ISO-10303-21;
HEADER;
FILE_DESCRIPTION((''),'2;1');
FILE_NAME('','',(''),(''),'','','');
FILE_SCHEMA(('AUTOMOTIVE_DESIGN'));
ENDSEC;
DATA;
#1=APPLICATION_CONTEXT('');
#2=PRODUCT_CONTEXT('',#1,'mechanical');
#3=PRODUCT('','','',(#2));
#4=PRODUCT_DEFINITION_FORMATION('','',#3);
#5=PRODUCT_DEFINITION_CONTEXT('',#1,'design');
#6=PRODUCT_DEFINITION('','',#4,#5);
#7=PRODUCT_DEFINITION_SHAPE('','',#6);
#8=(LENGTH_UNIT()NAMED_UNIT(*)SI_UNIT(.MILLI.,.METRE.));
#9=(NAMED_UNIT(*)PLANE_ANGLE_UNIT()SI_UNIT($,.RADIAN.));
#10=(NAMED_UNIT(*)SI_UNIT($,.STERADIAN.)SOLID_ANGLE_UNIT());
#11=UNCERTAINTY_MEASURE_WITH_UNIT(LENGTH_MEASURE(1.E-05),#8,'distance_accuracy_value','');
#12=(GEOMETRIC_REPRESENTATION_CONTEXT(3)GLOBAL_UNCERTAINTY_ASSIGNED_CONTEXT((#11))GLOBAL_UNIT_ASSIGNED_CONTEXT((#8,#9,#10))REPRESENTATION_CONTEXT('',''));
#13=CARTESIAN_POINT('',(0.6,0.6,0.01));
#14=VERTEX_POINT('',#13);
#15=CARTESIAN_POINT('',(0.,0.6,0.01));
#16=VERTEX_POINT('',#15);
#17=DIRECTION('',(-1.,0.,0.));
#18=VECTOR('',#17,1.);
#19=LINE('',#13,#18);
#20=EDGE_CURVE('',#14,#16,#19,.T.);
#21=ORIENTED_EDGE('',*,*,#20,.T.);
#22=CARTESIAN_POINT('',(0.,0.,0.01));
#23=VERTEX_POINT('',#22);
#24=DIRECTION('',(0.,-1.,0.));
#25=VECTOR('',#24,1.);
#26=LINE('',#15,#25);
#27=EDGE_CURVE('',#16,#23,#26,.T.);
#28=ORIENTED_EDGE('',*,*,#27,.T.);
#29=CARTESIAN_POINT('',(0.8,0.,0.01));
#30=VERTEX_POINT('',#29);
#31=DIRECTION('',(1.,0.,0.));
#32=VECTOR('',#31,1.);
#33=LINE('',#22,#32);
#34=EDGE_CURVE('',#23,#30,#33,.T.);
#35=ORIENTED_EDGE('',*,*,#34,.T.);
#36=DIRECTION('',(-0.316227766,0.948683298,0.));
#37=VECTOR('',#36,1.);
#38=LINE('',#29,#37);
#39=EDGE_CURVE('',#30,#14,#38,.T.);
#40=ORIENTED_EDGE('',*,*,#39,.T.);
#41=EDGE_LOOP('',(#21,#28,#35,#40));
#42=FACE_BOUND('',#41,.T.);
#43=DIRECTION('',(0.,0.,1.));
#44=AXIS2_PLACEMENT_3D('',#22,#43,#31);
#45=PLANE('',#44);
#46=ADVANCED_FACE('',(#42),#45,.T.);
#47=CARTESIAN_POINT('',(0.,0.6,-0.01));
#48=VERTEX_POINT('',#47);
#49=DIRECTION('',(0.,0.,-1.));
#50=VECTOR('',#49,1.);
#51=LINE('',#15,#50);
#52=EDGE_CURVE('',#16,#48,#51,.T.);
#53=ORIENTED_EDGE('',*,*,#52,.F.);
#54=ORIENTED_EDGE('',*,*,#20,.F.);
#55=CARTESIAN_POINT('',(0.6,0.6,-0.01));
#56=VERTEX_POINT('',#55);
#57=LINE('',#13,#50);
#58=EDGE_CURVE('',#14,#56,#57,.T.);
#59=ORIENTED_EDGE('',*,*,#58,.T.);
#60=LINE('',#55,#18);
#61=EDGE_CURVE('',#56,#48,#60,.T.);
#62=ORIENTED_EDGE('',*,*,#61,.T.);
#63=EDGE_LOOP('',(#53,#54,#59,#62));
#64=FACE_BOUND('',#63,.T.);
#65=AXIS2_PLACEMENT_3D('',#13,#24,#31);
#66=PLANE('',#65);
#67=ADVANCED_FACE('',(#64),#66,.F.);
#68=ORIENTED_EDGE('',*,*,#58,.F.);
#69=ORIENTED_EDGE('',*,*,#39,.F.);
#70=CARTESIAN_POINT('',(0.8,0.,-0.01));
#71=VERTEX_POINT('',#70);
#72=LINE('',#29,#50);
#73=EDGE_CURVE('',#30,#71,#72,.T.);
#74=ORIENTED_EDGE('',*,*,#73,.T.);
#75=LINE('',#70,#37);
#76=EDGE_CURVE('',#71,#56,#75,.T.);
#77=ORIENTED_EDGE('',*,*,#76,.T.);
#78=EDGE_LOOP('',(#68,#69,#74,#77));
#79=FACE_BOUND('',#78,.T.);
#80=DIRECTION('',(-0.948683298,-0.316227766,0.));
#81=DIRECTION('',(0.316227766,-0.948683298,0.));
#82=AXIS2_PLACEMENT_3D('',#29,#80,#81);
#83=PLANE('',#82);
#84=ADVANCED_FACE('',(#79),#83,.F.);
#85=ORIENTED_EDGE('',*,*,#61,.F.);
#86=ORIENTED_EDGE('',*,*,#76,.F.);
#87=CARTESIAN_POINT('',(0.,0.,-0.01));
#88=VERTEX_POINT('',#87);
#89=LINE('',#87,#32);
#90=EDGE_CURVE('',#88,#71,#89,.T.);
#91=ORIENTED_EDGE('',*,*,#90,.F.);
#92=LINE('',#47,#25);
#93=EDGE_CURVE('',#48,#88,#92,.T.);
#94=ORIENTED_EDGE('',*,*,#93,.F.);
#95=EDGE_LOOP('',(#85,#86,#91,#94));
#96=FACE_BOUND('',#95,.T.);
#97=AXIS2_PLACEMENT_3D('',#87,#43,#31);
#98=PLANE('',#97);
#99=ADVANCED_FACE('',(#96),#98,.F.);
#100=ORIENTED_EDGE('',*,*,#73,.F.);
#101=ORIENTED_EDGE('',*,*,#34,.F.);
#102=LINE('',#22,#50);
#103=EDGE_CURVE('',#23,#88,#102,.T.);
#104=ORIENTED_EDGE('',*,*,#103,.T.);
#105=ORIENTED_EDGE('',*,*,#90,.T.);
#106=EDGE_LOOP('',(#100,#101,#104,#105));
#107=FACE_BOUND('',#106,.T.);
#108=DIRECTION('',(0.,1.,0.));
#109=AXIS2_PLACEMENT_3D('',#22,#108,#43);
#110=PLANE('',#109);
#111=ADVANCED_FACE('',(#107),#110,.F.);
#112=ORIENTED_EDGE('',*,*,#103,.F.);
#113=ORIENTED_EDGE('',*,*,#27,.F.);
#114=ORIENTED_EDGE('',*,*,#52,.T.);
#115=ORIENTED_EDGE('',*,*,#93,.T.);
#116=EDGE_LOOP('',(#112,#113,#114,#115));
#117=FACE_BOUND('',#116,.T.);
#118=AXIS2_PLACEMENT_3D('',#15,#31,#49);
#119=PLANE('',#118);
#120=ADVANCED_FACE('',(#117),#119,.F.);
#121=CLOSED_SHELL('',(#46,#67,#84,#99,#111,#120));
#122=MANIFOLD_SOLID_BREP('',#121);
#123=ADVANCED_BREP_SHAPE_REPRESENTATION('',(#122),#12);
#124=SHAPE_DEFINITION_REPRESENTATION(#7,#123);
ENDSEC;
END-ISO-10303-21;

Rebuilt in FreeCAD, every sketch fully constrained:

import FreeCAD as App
import Part
import Sketcher


def add_polygon(sketch, points):
    """Adds a closed chain of lines whose ends are joined by coincident constraints."""
    first, n = sketch.GeometryCount, len(points)
    for a, b in zip(points, points[1:] + points[:1]):
        sketch.addGeometry(Part.LineSegment(App.Vector(*a, 0), App.Vector(*b, 0)), False)
    for i in range(n):
        sketch.addConstraint(Sketcher.Constraint("Coincident", first + i, 2, first + (i + 1) % n, 1))

doc = App.newDocument("Part")
body = doc.addObject("PartDesign::Body", "Body")

sketch1 = doc.addObject("Sketcher::SketchObject", "Sketch")
body.addObject(sketch1)
sketch1.AttachmentSupport = (doc.XY_Plane, [""])
sketch1.MapMode = "FlatFace"
add_polygon(sketch1, [(0, 0.6), (0, 0), (0.8, 0), (0.6, 0.6)])
sketch1.addConstraint([
    Sketcher.Constraint("Vertical", 0),
    Sketcher.Constraint("Horizontal", 1),
    Sketcher.Constraint("Horizontal", 3),
    Sketcher.Constraint("Coincident", 0, 2, -1, 1),
    Sketcher.Constraint("Equal", 3, 0),
    Sketcher.Constraint("DistanceX", 1, 1, 1, 2, 0.8),
    Sketcher.Constraint("DistanceX", 3, 2, 3, 1, 0.6),
])
pad1 = doc.addObject("PartDesign::Pad", "Pad")
body.addObject(pad1)
pad1.Profile = sketch1
pad1.Length = 0.02
pad1.Midplane = True

doc.recompute()
